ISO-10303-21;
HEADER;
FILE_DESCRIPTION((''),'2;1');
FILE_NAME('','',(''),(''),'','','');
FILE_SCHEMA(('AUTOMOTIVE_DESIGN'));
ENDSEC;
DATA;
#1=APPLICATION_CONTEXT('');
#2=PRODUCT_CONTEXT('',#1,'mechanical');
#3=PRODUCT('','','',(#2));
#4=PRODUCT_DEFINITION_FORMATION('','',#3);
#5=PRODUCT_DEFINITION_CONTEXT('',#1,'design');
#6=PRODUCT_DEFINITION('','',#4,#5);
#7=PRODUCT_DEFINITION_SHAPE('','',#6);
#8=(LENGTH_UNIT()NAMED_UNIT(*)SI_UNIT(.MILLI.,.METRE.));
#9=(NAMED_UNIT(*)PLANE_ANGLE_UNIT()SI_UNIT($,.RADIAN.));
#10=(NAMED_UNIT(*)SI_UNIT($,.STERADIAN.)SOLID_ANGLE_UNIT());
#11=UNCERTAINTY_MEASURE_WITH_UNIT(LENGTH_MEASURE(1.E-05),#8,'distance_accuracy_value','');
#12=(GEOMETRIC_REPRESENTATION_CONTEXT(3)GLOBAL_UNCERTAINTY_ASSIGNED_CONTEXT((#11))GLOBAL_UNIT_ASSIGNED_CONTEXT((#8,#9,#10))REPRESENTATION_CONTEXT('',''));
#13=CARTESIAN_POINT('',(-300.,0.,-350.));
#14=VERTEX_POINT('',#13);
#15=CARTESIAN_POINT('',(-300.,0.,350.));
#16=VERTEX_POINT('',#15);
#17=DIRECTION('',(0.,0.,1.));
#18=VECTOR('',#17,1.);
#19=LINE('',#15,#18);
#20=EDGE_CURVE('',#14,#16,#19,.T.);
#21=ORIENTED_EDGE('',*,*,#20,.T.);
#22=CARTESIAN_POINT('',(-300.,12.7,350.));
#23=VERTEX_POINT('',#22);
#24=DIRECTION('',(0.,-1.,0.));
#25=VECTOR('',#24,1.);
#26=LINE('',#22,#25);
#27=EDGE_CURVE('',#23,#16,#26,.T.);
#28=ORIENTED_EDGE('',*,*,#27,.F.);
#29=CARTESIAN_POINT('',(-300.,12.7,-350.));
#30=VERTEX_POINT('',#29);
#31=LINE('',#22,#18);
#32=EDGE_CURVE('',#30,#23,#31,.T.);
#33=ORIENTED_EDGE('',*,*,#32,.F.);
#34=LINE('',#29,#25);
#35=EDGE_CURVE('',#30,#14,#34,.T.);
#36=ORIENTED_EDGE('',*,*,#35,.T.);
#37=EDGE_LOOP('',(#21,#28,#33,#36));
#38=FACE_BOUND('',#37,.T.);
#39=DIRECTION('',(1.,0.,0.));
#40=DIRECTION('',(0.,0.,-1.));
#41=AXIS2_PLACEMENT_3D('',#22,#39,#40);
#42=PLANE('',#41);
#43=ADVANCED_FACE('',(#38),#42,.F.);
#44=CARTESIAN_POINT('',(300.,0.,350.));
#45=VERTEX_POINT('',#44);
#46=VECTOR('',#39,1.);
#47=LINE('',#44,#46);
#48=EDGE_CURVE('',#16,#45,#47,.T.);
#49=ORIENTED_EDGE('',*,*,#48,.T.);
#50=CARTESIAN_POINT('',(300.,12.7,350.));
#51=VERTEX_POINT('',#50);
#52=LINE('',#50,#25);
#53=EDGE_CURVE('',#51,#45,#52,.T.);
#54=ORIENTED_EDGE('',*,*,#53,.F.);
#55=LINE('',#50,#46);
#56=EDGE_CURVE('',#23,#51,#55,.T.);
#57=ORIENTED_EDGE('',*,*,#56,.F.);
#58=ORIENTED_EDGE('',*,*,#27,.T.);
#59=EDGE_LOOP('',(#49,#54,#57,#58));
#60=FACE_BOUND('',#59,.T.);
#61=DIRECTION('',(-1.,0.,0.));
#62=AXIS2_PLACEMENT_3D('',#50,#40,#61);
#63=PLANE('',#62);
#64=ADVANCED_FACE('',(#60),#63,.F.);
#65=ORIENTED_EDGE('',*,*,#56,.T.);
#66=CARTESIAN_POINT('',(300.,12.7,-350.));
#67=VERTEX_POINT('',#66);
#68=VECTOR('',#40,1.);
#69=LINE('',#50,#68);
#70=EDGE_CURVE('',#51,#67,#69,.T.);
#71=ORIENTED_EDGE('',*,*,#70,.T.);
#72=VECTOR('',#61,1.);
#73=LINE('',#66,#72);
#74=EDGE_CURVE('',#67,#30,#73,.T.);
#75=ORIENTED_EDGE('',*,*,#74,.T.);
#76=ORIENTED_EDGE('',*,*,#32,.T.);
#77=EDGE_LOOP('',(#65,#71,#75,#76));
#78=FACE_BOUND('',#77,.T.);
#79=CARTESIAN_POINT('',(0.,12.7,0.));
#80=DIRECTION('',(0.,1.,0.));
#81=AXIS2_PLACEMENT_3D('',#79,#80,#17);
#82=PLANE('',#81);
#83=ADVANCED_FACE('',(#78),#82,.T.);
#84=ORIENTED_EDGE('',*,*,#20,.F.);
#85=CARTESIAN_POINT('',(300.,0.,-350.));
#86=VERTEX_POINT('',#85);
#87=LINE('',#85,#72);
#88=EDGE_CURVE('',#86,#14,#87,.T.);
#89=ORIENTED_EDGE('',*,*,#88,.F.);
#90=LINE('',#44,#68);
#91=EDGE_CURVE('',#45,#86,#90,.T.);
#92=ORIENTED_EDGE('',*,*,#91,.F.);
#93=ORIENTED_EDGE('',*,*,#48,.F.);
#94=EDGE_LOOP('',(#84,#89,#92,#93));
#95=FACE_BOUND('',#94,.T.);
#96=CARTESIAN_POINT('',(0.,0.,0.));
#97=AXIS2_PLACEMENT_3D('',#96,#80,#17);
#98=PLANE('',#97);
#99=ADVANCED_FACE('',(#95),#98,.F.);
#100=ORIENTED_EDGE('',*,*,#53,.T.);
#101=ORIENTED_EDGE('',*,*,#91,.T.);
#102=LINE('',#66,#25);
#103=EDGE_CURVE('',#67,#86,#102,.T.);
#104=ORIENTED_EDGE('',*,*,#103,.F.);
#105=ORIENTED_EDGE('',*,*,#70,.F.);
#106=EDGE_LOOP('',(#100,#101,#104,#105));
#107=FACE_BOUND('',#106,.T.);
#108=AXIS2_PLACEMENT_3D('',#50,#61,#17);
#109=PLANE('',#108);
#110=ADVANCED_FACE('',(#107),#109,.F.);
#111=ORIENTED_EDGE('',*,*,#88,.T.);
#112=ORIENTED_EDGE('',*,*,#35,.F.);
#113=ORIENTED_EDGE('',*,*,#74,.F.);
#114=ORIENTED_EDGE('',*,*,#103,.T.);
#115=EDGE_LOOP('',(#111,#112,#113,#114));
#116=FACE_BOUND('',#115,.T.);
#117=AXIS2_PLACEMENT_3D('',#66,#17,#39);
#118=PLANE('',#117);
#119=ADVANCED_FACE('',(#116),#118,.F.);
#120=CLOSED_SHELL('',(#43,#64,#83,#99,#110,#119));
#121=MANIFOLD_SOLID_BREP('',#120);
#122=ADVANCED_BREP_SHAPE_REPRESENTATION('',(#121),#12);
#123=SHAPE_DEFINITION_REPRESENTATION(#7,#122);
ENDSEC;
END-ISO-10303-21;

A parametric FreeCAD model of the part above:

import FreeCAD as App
import Part
import Sketcher

doc = App.newDocument("Part")
body = doc.addObject("PartDesign::Body", "Body")

# Sketch on XZ plane
sketch1 = body.newObject("Sketcher::SketchObject", "Sketch")
sketch1.AttachmentSupport = (doc.getObject("XZ_Plane"), [""])
sketch1.MapMode = "FlatFace"
sketch1.addGeometry([
    Part.LineSegment(App.Vector(-300, -350, 0), App.Vector(-300, 350, 0)),
    Part.LineSegment(App.Vector(-300, 350, 0), App.Vector(300, 350, 0)),
    Part.LineSegment(App.Vector(300, 350, 0), App.Vector(300, -350, 0)),
    Part.LineSegment(App.Vector(300, -350, 0), App.Vector(-300, -350, 0)),
], False)
sketch1.addConstraint([
    Sketcher.Constraint("Coincident", 0, 2, 1, 1),
    Sketcher.Constraint("Coincident", 1, 2, 2, 1),
    Sketcher.Constraint("Coincident", 2, 2, 3, 1),
    Sketcher.Constraint("Coincident", 3, 2, 0, 1),
    Sketcher.Constraint("Vertical", 0),
    Sketcher.Constraint("Horizontal", 1),
    Sketcher.Constraint("Vertical", 2),
    Sketcher.Constraint("Horizontal", 3),
    Sketcher.Constraint("Symmetric", 0, 2, 2, 2, -1, 1),
    Sketcher.Constraint("DistanceX", 1, 1, 1, 2, 600.0),
    Sketcher.Constraint("DistanceY", 0, 1, 0, 2, 700.0),
])
pad1 = body.newObject("PartDesign::Pad", "Pad")
pad1.Profile = sketch1
pad1.Length = 12.7
pad1.Reversed = True

doc.recompute()
